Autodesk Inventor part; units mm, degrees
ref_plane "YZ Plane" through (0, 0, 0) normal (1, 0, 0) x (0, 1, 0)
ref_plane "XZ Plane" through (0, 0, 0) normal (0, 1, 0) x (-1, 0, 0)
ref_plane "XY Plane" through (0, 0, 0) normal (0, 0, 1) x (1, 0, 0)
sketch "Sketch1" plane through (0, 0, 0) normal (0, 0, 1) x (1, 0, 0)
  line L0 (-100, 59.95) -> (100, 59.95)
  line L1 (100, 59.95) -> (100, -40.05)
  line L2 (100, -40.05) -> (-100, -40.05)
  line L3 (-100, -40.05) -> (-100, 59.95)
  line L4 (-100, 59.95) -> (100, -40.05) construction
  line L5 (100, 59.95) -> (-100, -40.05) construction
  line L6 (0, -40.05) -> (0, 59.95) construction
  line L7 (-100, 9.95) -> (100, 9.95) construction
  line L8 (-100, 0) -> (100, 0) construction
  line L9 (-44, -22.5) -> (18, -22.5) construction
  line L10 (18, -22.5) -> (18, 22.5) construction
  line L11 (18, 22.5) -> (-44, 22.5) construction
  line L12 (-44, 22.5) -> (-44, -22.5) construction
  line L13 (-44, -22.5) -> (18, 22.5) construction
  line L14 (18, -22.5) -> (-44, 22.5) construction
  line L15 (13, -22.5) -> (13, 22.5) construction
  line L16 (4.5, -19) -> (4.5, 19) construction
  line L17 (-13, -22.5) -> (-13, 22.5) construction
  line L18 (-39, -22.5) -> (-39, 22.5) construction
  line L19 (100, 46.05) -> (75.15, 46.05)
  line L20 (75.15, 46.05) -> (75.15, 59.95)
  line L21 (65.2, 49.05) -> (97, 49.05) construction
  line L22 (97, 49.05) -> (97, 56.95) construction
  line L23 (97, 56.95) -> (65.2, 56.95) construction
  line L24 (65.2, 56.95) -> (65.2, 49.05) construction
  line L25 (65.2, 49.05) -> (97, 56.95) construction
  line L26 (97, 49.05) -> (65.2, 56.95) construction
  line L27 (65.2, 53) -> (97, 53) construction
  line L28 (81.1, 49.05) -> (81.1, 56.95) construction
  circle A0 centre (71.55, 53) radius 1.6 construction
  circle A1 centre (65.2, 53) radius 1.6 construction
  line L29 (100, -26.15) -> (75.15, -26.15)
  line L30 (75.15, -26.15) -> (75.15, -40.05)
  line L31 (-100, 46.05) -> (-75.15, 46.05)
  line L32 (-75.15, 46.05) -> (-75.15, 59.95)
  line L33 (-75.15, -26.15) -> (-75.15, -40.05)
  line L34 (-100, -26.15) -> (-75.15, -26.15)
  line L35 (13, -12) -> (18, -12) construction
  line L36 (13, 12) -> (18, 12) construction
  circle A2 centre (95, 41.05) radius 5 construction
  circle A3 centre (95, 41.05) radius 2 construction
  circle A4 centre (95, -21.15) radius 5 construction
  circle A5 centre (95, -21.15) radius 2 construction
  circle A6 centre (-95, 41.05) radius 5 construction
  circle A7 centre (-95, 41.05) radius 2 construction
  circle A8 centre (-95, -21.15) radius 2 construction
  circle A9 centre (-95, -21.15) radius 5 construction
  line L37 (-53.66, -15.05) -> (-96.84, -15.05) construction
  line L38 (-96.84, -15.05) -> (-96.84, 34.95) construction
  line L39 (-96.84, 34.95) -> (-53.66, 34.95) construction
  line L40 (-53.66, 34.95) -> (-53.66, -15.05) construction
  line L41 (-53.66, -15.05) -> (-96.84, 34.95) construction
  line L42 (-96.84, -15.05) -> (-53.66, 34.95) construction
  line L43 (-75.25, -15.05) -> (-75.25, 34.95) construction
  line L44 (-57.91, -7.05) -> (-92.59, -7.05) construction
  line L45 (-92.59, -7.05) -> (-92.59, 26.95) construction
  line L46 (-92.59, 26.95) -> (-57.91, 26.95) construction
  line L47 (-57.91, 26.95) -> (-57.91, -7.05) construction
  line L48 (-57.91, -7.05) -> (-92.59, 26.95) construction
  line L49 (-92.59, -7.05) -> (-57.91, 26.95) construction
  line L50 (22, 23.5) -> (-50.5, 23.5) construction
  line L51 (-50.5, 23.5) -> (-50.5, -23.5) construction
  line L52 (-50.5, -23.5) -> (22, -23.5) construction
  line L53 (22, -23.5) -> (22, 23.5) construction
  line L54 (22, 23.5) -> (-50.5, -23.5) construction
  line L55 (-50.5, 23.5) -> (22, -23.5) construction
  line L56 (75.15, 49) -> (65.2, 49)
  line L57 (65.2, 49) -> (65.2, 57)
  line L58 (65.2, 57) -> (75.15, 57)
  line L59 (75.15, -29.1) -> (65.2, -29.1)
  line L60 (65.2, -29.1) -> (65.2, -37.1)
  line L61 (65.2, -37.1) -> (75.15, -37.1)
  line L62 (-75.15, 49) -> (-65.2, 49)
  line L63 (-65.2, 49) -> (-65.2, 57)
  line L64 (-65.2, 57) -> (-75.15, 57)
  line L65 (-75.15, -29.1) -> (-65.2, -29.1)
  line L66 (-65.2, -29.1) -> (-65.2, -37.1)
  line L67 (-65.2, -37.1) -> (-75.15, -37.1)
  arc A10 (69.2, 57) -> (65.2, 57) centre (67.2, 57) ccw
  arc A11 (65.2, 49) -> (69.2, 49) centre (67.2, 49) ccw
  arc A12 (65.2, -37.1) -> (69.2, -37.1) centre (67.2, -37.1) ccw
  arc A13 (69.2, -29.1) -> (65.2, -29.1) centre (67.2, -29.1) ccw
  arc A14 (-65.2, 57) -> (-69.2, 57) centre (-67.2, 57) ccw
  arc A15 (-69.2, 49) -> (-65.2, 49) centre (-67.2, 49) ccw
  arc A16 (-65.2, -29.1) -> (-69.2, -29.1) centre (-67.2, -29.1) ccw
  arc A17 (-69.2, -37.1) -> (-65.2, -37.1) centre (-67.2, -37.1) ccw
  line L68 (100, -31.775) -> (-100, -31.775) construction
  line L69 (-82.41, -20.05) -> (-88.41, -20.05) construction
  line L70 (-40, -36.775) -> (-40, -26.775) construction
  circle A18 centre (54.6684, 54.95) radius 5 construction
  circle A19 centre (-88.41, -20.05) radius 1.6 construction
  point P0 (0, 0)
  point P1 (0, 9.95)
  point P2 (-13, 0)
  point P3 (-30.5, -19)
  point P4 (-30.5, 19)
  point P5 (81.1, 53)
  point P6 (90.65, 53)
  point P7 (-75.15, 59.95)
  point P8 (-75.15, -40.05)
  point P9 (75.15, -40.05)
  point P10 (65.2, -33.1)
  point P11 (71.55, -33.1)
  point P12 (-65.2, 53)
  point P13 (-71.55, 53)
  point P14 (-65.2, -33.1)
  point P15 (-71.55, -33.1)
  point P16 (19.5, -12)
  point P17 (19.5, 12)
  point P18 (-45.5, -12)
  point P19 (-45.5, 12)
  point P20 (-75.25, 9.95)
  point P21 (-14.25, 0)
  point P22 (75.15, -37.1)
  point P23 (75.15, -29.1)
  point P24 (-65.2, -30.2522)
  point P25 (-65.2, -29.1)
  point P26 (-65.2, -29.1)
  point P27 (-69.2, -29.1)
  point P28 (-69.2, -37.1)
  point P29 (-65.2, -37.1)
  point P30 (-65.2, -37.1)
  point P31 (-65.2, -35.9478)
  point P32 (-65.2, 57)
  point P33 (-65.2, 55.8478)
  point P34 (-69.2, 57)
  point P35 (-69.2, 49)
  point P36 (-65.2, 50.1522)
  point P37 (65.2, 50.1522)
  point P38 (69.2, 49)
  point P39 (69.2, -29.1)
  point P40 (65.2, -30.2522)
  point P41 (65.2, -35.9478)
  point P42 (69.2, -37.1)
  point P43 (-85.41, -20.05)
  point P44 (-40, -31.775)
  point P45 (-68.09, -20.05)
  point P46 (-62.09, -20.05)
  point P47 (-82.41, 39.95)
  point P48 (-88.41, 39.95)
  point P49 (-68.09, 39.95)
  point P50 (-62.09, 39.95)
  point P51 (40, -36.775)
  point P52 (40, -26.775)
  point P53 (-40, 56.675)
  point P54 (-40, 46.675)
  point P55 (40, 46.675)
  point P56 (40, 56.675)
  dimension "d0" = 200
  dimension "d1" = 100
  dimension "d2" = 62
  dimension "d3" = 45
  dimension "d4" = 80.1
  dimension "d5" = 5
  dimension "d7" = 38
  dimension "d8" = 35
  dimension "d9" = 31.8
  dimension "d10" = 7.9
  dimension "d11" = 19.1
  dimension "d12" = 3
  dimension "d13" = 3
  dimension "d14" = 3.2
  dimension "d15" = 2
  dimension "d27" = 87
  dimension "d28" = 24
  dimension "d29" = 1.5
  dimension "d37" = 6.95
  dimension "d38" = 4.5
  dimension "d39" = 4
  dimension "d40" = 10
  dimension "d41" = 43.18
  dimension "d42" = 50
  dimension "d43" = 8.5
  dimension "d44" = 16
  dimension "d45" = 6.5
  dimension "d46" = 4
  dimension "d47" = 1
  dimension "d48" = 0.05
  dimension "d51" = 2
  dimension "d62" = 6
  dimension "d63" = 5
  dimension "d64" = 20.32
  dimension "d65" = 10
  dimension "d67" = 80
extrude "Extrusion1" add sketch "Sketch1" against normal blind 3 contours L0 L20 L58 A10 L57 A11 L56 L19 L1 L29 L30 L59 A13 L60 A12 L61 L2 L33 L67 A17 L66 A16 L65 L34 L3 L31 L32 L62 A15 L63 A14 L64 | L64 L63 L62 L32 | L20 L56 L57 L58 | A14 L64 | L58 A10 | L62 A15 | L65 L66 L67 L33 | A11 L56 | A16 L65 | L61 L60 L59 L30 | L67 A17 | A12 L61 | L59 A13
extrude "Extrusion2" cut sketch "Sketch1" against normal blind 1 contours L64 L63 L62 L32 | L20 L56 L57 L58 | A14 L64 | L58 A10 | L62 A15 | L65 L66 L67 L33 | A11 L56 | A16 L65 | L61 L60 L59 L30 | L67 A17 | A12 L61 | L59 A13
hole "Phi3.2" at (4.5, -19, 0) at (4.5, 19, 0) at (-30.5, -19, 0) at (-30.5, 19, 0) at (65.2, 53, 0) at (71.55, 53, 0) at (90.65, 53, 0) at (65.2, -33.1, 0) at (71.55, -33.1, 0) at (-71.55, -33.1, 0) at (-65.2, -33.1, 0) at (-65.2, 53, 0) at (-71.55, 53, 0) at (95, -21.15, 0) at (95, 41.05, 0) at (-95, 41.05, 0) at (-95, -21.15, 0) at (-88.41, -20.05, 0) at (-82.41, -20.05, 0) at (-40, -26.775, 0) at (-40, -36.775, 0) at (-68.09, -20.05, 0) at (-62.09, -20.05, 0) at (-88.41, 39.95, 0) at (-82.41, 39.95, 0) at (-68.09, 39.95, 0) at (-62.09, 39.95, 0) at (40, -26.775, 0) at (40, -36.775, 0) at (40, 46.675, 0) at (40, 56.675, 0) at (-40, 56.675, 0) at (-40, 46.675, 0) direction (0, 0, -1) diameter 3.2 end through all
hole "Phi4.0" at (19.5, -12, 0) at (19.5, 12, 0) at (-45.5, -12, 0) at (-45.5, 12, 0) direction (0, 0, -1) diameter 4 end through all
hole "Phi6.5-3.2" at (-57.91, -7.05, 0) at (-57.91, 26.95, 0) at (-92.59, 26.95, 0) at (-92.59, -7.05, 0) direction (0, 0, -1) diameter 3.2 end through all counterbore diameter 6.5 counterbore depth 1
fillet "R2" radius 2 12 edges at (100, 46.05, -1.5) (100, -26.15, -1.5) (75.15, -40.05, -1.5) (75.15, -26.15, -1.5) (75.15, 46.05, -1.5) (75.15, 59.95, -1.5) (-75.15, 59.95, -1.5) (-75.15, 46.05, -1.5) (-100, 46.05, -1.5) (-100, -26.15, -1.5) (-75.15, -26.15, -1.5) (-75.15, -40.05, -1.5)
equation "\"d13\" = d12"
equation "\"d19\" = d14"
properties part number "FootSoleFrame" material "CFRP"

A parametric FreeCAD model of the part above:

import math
import FreeCAD as App
import Part
import Sketcher
Q = App.Units.Quantity


def edges_at(feature, points):
    """Names of the edges that pass closest to the given points."""
    edges = feature.Shape.Edges
    near = lambda p: min(range(len(edges)), key=lambda i: edges[i].distToShape(Part.Vertex(*p))[0])
    return sorted({f"Edge{near(p) + 1}" for p in points})

doc = App.newDocument("Part")
body = doc.addObject("PartDesign::Body", "Body")

# Sketch on XY plane
sketch1 = doc.addObject("Sketcher::SketchObject", "Sketch")
body.addObject(sketch1)
sketch1.AttachmentSupport = (doc.XY_Plane, [""])
sketch1.MapMode = "FlatFace"
sketch1.addGeometry([
    Part.LineSegment(App.Vector(75, 60, 0), App.Vector(-75, 60, 0)),  # 0
    Part.LineSegment(App.Vector(-75, 60, 0), App.Vector(-75, 46, 0)),  # 1
    Part.LineSegment(App.Vector(-75, 46, 0), App.Vector(-100, 46, 0)),  # 2
    Part.LineSegment(App.Vector(-100, 46, 0), App.Vector(-100, -26, 0)),  # 3
    Part.LineSegment(App.Vector(-100, -26, 0), App.Vector(-75, -26, 0)),  # 4
    Part.LineSegment(App.Vector(-75, -26, 0), App.Vector(-75, -40, 0)),  # 5
    Part.LineSegment(App.Vector(-75, -40, 0), App.Vector(75, -40, 0)),  # 6
    Part.LineSegment(App.Vector(75, -40, 0), App.Vector(75, -26, 0)),  # 7
    Part.LineSegment(App.Vector(75, -26, 0), App.Vector(100, -26, 0)),  # 8
    Part.LineSegment(App.Vector(100, -26, 0), App.Vector(100, 46, 0)),  # 9
    Part.LineSegment(App.Vector(100, 46, 0), App.Vector(75, 46, 0)),  # 10
    Part.LineSegment(App.Vector(75, 46, 0), App.Vector(75, 60, 0)),  # 11
], False)
sketch1.addConstraint([
    Sketcher.Constraint("Coincident", 0, 2, 1, 1),
    Sketcher.Constraint("Coincident", 1, 2, 2, 1),
    Sketcher.Constraint("Coincident", 2, 2, 3, 1),
    Sketcher.Constraint("Coincident", 3, 2, 4, 1),
    Sketcher.Constraint("Coincident", 4, 2, 5, 1),
    Sketcher.Constraint("Coincident", 5, 2, 6, 1),
    Sketcher.Constraint("Coincident", 6, 2, 7, 1),
    Sketcher.Constraint("Coincident", 7, 2, 8, 1),
    Sketcher.Constraint("Coincident", 8, 2, 9, 1),
    Sketcher.Constraint("Coincident", 9, 2, 10, 1),
    Sketcher.Constraint("Coincident", 10, 2, 11, 1),
    Sketcher.Constraint("Coincident", 11, 2, 0, 1),
    Sketcher.Constraint("Horizontal", 0),
    Sketcher.Constraint("Vertical", 1),
    Sketcher.Constraint("Horizontal", 2),
    Sketcher.Constraint("Vertical", 3),
    Sketcher.Constraint("Horizontal", 4),
    Sketcher.Constraint("Vertical", 5),
    Sketcher.Constraint("Horizontal", 6),
    Sketcher.Constraint("Vertical", 7),
    Sketcher.Constraint("Horizontal", 8),
    Sketcher.Constraint("Vertical", 9),
    Sketcher.Constraint("Horizontal", 10),
    Sketcher.Constraint("Vertical", 11),
    Sketcher.Constraint("Symmetric", 4, 2, 7, 2, -2),
    Sketcher.Constraint("Symmetric", 2, 2, 9, 2, -2),
    Sketcher.Constraint("Vertical", 1, 2, 4, 2),
    Sketcher.Constraint("Vertical", 7, 2, 10, 2),
    Sketcher.Constraint("Equal", 1, 5),
    Sketcher.Constraint("DistanceX", 2, 2, -1, 1, Q("100 mm")),
    Sketcher.Constraint("DistanceY", 5, 2, 0, 2, Q("100 mm")),
    Sketcher.Constraint("DistanceX", 0, 2, 0, 1, Q("150.3 mm")),
    Sketcher.Constraint("DistanceY", 1, 2, 1, 1, Q("13.9 mm")),
    Sketcher.Constraint("DistanceY", -1, 1, 0, 2, Q("59.95 mm")),
])
pad1 = doc.addObject("PartDesign::Pad", "Pad")
body.addObject(pad1)
pad1.Profile = sketch1
pad1.Length = 3
pad1.Reversed = True

# Sketch on XY plane
sketch2 = doc.addObject("Sketcher::SketchObject", "Sketch001")
body.addObject(sketch2)
sketch2.AttachmentSupport = (doc.XY_Plane, [""])
sketch2.MapMode = "FlatFace"
sketch2.addGeometry([
    Part.LineSegment(App.Vector(-69.2, 57, 0), App.Vector(-75.2, 57, 0)),  # 0
    Part.LineSegment(App.Vector(-75.2, 57, 0), App.Vector(-75.2, 49, 0)),  # 1
    Part.LineSegment(App.Vector(-75.2, 49, 0), App.Vector(-69.2, 49, 0)),  # 2
    Part.ArcOfCircle(Part.Circle(App.Vector(-67.2, 49, 0), App.Vector(0, 0, 1), 2), math.radians(180), math.radians(360)),  # 3
    Part.LineSegment(App.Vector(-65.2, 49, 0), App.Vector(-65.2, 57, 0)),  # 4
    Part.ArcOfCircle(Part.Circle(App.Vector(-67.2, 57, 0), App.Vector(0, 0, 1), 2), math.radians(0), math.radians(180)),  # 5
    Part.LineSegment(App.Vector(75.2, 49, 0), App.Vector(75.2, 57, 0)),  # 6
    Part.LineSegment(App.Vector(75.2, 57, 0), App.Vector(69.2, 57, 0)),  # 7
    Part.ArcOfCircle(Part.Circle(App.Vector(67.2, 57, 0), App.Vector(0, 0, 1), 2), math.radians(0), math.radians(180)),  # 8
    Part.LineSegment(App.Vector(65.2, 57, 0), App.Vector(65.2, 49, 0)),  # 9
    Part.ArcOfCircle(Part.Circle(App.Vector(67.2, 49, 0), App.Vector(0, 0, 1), 2), math.radians(180), math.radians(360)),  # 10
    Part.LineSegment(App.Vector(69.2, 49, 0), App.Vector(75.2, 49, 0)),  # 11
    Part.LineSegment(App.Vector(-69.2, -29.1, 0), App.Vector(-75.2, -29.1, 0)),  # 12
    Part.LineSegment(App.Vector(-75.2, -29.1, 0), App.Vector(-75.2, -37.1, 0)),  # 13
    Part.LineSegment(App.Vector(-75.2, -37.1, 0), App.Vector(-69.2, -37.1, 0)),  # 14
    Part.ArcOfCircle(Part.Circle(App.Vector(-67.2, -37.1, 0), App.Vector(0, 0, 1), 2), math.radians(180), math.radians(360)),  # 15
    Part.LineSegment(App.Vector(-65.2, -37.1, 0), App.Vector(-65.2, -29.1, 0)),  # 16
    Part.ArcOfCircle(Part.Circle(App.Vector(-67.2, -29.1, 0), App.Vector(0, 0, 1), 2), math.radians(0), math.radians(180)),  # 17
    Part.LineSegment(App.Vector(69.2, -37.1, 0), App.Vector(75.2, -37.1, 0)),  # 18
    Part.LineSegment(App.Vector(75.2, -37.1, 0), App.Vector(75.2, -29.1, 0)),  # 19
    Part.LineSegment(App.Vector(75.2, -29.1, 0), App.Vector(69.2, -29.1, 0)),  # 20
    Part.ArcOfCircle(Part.Circle(App.Vector(67.2, -29.1, 0), App.Vector(0, 0, 1), 2), math.radians(0), math.radians(180)),  # 21
    Part.LineSegment(App.Vector(65.2, -29.1, 0), App.Vector(65.2, -37.1, 0)),  # 22
    Part.ArcOfCircle(Part.Circle(App.Vector(67.2, -37.1, 0), App.Vector(0, 0, 1), 2), math.radians(180), math.radians(360)),  # 23
], False)
sketch2.addConstraint([
    Sketcher.Constraint("Coincident", 0, 2, 1, 1),
    Sketcher.Constraint("Coincident", 1, 2, 2, 1),
    Sketcher.Constraint("Coincident", 2, 2, 3, 1),
    Sketcher.Constraint("Tangent", 3, 2, 4, 1),
    Sketcher.Constraint("Tangent", 4, 2, 5, 1),
    Sketcher.Constraint("Coincident", 5, 2, 0, 1),
    Sketcher.Constraint("Coincident", 6, 2, 7, 1),
    Sketcher.Constraint("Coincident", 7, 2, 8, 1),
    Sketcher.Constraint("Tangent", 8, 2, 9, 1),
    Sketcher.Constraint("Tangent", 9, 2, 10, 1),
    Sketcher.Constraint("Coincident", 10, 2, 11, 1),
    Sketcher.Constraint("Coincident", 11, 2, 6, 1),
    Sketcher.Constraint("Coincident", 12, 2, 13, 1),
    Sketcher.Constraint("Coincident", 13, 2, 14, 1),
    Sketcher.Constraint("Coincident", 14, 2, 15, 1),
    Sketcher.Constraint("Tangent", 15, 2, 16, 1),
    Sketcher.Constraint("Tangent", 16, 2, 17, 1),
    Sketcher.Constraint("Coincident", 17, 2, 12, 1),
    Sketcher.Constraint("Coincident", 18, 2, 19, 1),
    Sketcher.Constraint("Coincident", 19, 2, 20, 1),
    Sketcher.Constraint("Coincident", 20, 2, 21, 1),
    Sketcher.Constraint("Tangent", 21, 2, 22, 1),
    Sketcher.Constraint("Tangent", 22, 2, 23, 1),
    Sketcher.Constraint("Coincident", 23, 2, 18, 1),
    Sketcher.Constraint("Horizontal", 0),
    Sketcher.Constraint("Vertical", 1),
    Sketcher.Constraint("Horizontal", 2),
    Sketcher.Constraint("Vertical", 4),
    Sketcher.Constraint("Vertical", 6),
    Sketcher.Constraint("Horizontal", 7),
    Sketcher.Constraint("Vertical", 9),
    Sketcher.Constraint("Horizontal", 11),
    Sketcher.Constraint("Horizontal", 12),
    Sketcher.Constraint("Vertical", 13),
    Sketcher.Constraint("Horizontal", 14),
    Sketcher.Constraint("Vertical", 16),
    Sketcher.Constraint("Horizontal", 18),
    Sketcher.Constraint("Vertical", 19),
    Sketcher.Constraint("Horizontal", 20),
    Sketcher.Constraint("Vertical", 22),
    Sketcher.Constraint("Equal", 3, 5),
    Sketcher.Constraint("Equal", 5, 8),
    Sketcher.Constraint("Equal", 8, 10),
    Sketcher.Constraint("Equal", 10, 15),
    Sketcher.Constraint("Equal", 15, 17),
    Sketcher.Constraint("Equal", 17, 21),
    Sketcher.Constraint("Equal", 21, 23),
    Sketcher.Constraint("Symmetric", 5, 3, 8, 3, -2),
    Sketcher.Constraint("Symmetric", 17, 3, 21, 3, -2),
    Sketcher.Constraint("Symmetric", 0, 2, 6, 2, -2),
    Sketcher.Constraint("Symmetric", 13, 2, 18, 2, -2),
    Sketcher.Constraint("Horizontal", 3, 3, 10, 3),
    Sketcher.Constraint("Horizontal", 15, 3, 23, 3),
    Sketcher.Constraint("Horizontal", 8, 3, 0, 2),
    Sketcher.Constraint("Horizontal", 10, 3, 1, 2),
    Sketcher.Constraint("Horizontal", 9, 2, 10, 2),
    Sketcher.Constraint("Horizontal", 21, 3, 12, 2),
    Sketcher.Constraint("Horizontal", 23, 3, 13, 2),
    Sketcher.Constraint("Horizontal", 17, 2, 19, 2),
    Sketcher.Constraint("Vertical", 5, 3, 15, 3),
    Sketcher.Constraint("Vertical", 1, 2, 12, 2),
    Sketcher.Constraint("Equal", 9, 13),
    Sketcher.Constraint("Radius", 3, Q("2 mm")),
    Sketcher.Constraint("DistanceY", 1, 2, 1, 1, Q("8 mm")),
    Sketcher.Constraint("DistanceY", -1, 1, 3, 3, Q("49 mm")),
    Sketcher.Constraint("DistanceX", 0, 2, 0, 1, Q("5.95 mm")),
    Sketcher.Constraint("DistanceX", 3, 3, -1, 1, Q("67.2 mm")),
    Sketcher.Constraint("DistanceY", 15, 3, -1, 1, Q("37.1 mm")),
])
pocket1 = doc.addObject("PartDesign::Pocket", "Pocket")
body.addObject(pocket1)
pocket1.Profile = sketch2
pocket1.Length = 1

# Sketch on XY plane
sketch3 = doc.addObject("Sketcher::SketchObject", "Sketch002")
body.addObject(sketch3)
sketch3.AttachmentSupport = (doc.XY_Plane, [""])
sketch3.MapMode = "FlatFace"
sketch3.addGeometry([
    Part.Circle(App.Vector(4.5, -19, 0), App.Vector(0, 0, 1), 1.6),  # 0
    Part.Circle(App.Vector(4.5, 19, 0), App.Vector(0, 0, 1), 1.6),  # 1
    Part.Circle(App.Vector(-30.5, -19, 0), App.Vector(0, 0, 1), 1.6),  # 2
    Part.Circle(App.Vector(-30.5, 19, 0), App.Vector(0, 0, 1), 1.6),  # 3
    Part.Circle(App.Vector(65.2, 53, 0), App.Vector(0, 0, 1), 1.6),  # 4
    Part.Circle(App.Vector(71.5, 53, 0), App.Vector(0, 0, 1), 1.6),  # 5
    Part.Circle(App.Vector(90.7, 53, 0), App.Vector(0, 0, 1), 1.6),  # 6
    Part.Circle(App.Vector(65.2, -33.1, 0), App.Vector(0, 0, 1), 1.6),  # 7
    Part.Circle(App.Vector(71.5, -33.1, 0), App.Vector(0, 0, 1), 1.6),  # 8
    Part.Circle(App.Vector(-71.5, -33.1, 0), App.Vector(0, 0, 1), 1.6),  # 9
    Part.Circle(App.Vector(-65.2, -33.1, 0), App.Vector(0, 0, 1), 1.6),  # 10
    Part.Circle(App.Vector(-65.2, 53, 0), App.Vector(0, 0, 1), 1.6),  # 11
    Part.Circle(App.Vector(-71.5, 53, 0), App.Vector(0, 0, 1), 1.6),  # 12
    Part.Circle(App.Vector(95, -21.1, 0), App.Vector(0, 0, 1), 1.6),  # 13
    Part.Circle(App.Vector(95, 41, 0), App.Vector(0, 0, 1), 1.6),  # 14
    Part.Circle(App.Vector(-95, 41, 0), App.Vector(0, 0, 1), 1.6),  # 15
    Part.Circle(App.Vector(-95, -21.1, 0), App.Vector(0, 0, 1), 1.6),  # 16
    Part.Circle(App.Vector(-88.4, -20.1, 0), App.Vector(0, 0, 1), 1.6),  # 17
    Part.Circle(App.Vector(-82.4, -20.1, 0), App.Vector(0, 0, 1), 1.6),  # 18
    Part.Circle(App.Vector(-40, -26.8, 0), App.Vector(0, 0, 1), 1.6),  # 19
    Part.Circle(App.Vector(-40, -36.8, 0), App.Vector(0, 0, 1), 1.6),  # 20
    Part.Circle(App.Vector(-68.1, -20.1, 0), App.Vector(0, 0, 1), 1.6),  # 21
    Part.Circle(App.Vector(-62.1, -20.1, 0), App.Vector(0, 0, 1), 1.6),  # 22
    Part.Circle(App.Vector(-88.4, 40, 0), App.Vector(0, 0, 1), 1.6),  # 23
    Part.Circle(App.Vector(-82.4, 40, 0), App.Vector(0, 0, 1), 1.6),  # 24
    Part.Circle(App.Vector(-68.1, 40, 0), App.Vector(0, 0, 1), 1.6),  # 25
    Part.Circle(App.Vector(-62.1, 40, 0), App.Vector(0, 0, 1), 1.6),  # 26
    Part.Circle(App.Vector(40, -26.8, 0), App.Vector(0, 0, 1), 1.6),  # 27
    Part.Circle(App.Vector(40, -36.8, 0), App.Vector(0, 0, 1), 1.6),  # 28
    Part.Circle(App.Vector(40, 46.7, 0), App.Vector(0, 0, 1), 1.6),  # 29
    Part.Circle(App.Vector(40, 56.7, 0), App.Vector(0, 0, 1), 1.6),  # 30
    Part.Circle(App.Vector(-40, 56.7, 0), App.Vector(0, 0, 1), 1.6),  # 31
    Part.Circle(App.Vector(-40, 46.7, 0), App.Vector(0, 0, 1), 1.6),  # 32
], False)
sketch3.addConstraint([
    Sketcher.Constraint("Equal", 0, 1),
    Sketcher.Constraint("Equal", 1, 2),
    Sketcher.Constraint("Equal", 2, 3),
    Sketcher.Constraint("Equal", 3, 4),
    Sketcher.Constraint("Equal", 4, 5),
    Sketcher.Constraint("Equal", 5, 6),
    Sketcher.Constraint("Equal", 6, 7),
    Sketcher.Constraint("Equal", 7, 8),
    Sketcher.Constraint("Equal", 8, 9),
    Sketcher.Constraint("Equal", 9, 10),
    Sketcher.Constraint("Equal", 10, 11),
    Sketcher.Constraint("Equal", 11, 12),
    Sketcher.Constraint("Equal", 12, 13),
    Sketcher.Constraint("Equal", 13, 14),
    Sketcher.Constraint("Equal", 14, 15),
    Sketcher.Constraint("Equal", 15, 16),
    Sketcher.Constraint("Equal", 16, 17),
    Sketcher.Constraint("Equal", 17, 18),
    Sketcher.Constraint("Equal", 18, 19),
    Sketcher.Constraint("Equal", 19, 20),
    Sketcher.Constraint("Equal", 20, 21),
    Sketcher.Constraint("Equal", 21, 22),
    Sketcher.Constraint("Equal", 22, 23),
    Sketcher.Constraint("Equal", 23, 24),
    Sketcher.Constraint("Equal", 24, 25),
    Sketcher.Constraint("Equal", 25, 26),
    Sketcher.Constraint("Equal", 26, 27),
    Sketcher.Constraint("Equal", 27, 28),
    Sketcher.Constraint("Equal", 28, 29),
    Sketcher.Constraint("Equal", 29, 30),
    Sketcher.Constraint("Equal", 30, 31),
    Sketcher.Constraint("Equal", 31, 32),
    Sketcher.Constraint("Symmetric", 8, 3, 9, 3, -2),
    Sketcher.Constraint("Symmetric", 7, 3, 10, 3, -2),
    Sketcher.Constraint("Symmetric", 4, 3, 11, 3, -2),
    Sketcher.Constraint("Symmetric", 5, 3, 12, 3, -2),
    Sketcher.Constraint("Symmetric", 14, 3, 15, 3, -2),
    Sketcher.Constraint("Symmetric", 13, 3, 16, 3, -2),
    Sketcher.Constraint("Symmetric", 19, 3, 27, 3, -2),
    Sketcher.Constraint("Symmetric", 20, 3, 28, 3, -2),
    Sketcher.Constraint("Symmetric", 30, 3, 31, 3, -2),
    Sketcher.Constraint("Symmetric", 29, 3, 32, 3, -2),
    Sketcher.Constraint("Symmetric", 0, 3, 1, 3, -1),
    Sketcher.Constraint("Symmetric", 2, 3, 3, 3, -1),
    Sketcher.Constraint("Horizontal", 0, 3, 2, 3),
    Sketcher.Constraint("Horizontal", 4, 3, 5, 3),
    Sketcher.Constraint("Horizontal", 5, 3, 6, 3),
    Sketcher.Constraint("Horizontal", 7, 3, 8, 3),
    Sketcher.Constraint("Horizontal", 17, 3, 18, 3),
    Sketcher.Constraint("Horizontal", 18, 3, 21, 3),
    Sketcher.Constraint("Horizontal", 21, 3, 22, 3),
    Sketcher.Constraint("Horizontal", 23, 3, 24, 3),
    Sketcher.Constraint("Horizontal", 24, 3, 25, 3),
    Sketcher.Constraint("Horizontal", 25, 3, 26, 3),
    Sketcher.Constraint("Vertical", 4, 3, 7, 3),
    Sketcher.Constraint("Vertical", 5, 3, 8, 3),
    Sketcher.Constraint("Vertical", 13, 3, 14, 3),
    Sketcher.Constraint("Vertical", 19, 3, 20, 3),
    Sketcher.Constraint("Vertical", 17, 3, 23, 3),
    Sketcher.Constraint("Vertical", 18, 3, 24, 3),
    Sketcher.Constraint("Vertical", 21, 3, 25, 3),
    Sketcher.Constraint("Vertical", 22, 3, 26, 3),
    Sketcher.Constraint("Vertical", 28, 3, 29, 3),
    Sketcher.Constraint("Vertical", 29, 3, 30, 3),
    Sketcher.Constraint("Diameter", 0, Q("3.2 mm")),
    Sketcher.Constraint("DistanceY", 0, 3, -1, 1, Q("19 mm")),
    Sketcher.Constraint("DistanceY", -1, 1, 4, 3, Q("53 mm")),
    Sketcher.Constraint("DistanceX", -1, 1, 13, 3, Q("95 mm")),
    Sketcher.Constraint("DistanceX", 19, 3, -1, 1, Q("40 mm")),
    Sketcher.Constraint("DistanceX", 2, 3, 0, 3, Q("35 mm")),
    Sketcher.Constraint("DistanceX", 17, 3, 18, 3, Q("6 mm")),
    Sketcher.Constraint("DistanceY", 20, 3, 19, 3, Q("10 mm")),
    Sketcher.Constraint("DistanceX", 21, 3, 22, 3, Q("6 mm")),
    Sketcher.Constraint("DistanceY", 17, 3, 23, 3, Q("60 mm")),
    Sketcher.Constraint("DistanceY", 29, 3, 30, 3, Q("10 mm")),
    Sketcher.Constraint("DistanceX", -1, 1, 0, 3, Q("4.5 mm")),
    Sketcher.Constraint("DistanceX", -1, 1, 4, 3, Q("65.2 mm")),
    Sketcher.Constraint("DistanceY", 7, 3, -1, 1, Q("33.1 mm")),
    Sketcher.Constraint("DistanceX", 5, 3, 6, 3, Q("19.1 mm")),
    Sketcher.Constraint("DistanceY", 13, 3, 14, 3, Q("62.2 mm")),
    Sketcher.Constraint("DistanceY", 16, 3, 17, 3, Q("1.1 mm")),
    Sketcher.Constraint("DistanceX", -1, 1, 5, 3, Q("71.55 mm")),
    Sketcher.Constraint("DistanceY", 13, 3, -1, 1, Q("21.15 mm")),
    Sketcher.Constraint("DistanceX", 17, 3, -1, 1, Q("88.41 mm")),
    Sketcher.Constraint("DistanceX", 21, 3, -1, 1, Q("68.09 mm")),
    Sketcher.Constraint("DistanceY", 19, 3, -1, 1, Q("26.775 mm")),
    Sketcher.Constraint("DistanceY", -1, 1, 29, 3, Q("46.675 mm")),
])
doc.recompute()
hole = doc.addObject("PartDesign::Hole", "Hole")
body.addObject(hole)
hole.Profile = sketch3
hole.ThreadType = "None"
hole.Diameter = 3.2
hole.DepthType = "ThroughAll"

# Sketch on XY plane
sketch4 = doc.addObject("Sketcher::SketchObject", "Sketch003")
body.addObject(sketch4)
sketch4.AttachmentSupport = (doc.XY_Plane, [""])
sketch4.MapMode = "FlatFace"
sketch4.addGeometry([
    Part.Circle(App.Vector(19.5, -12, 0), App.Vector(0, 0, 1), 2),
    Part.Circle(App.Vector(19.5, 12, 0), App.Vector(0, 0, 1), 2),
    Part.Circle(App.Vector(-45.5, -12, 0), App.Vector(0, 0, 1), 2),
    Part.Circle(App.Vector(-45.5, 12, 0), App.Vector(0, 0, 1), 2),
], False)
sketch4.addConstraint([
    Sketcher.Constraint("Equal", 0, 1),
    Sketcher.Constraint("Equal", 1, 2),
    Sketcher.Constraint("Equal", 2, 3),
    Sketcher.Constraint("Symmetric", 0, 3, 1, 3, -1),
    Sketcher.Constraint("Symmetric", 2, 3, 3, 3, -1),
    Sketcher.Constraint("Horizontal", 0, 3, 2, 3),
    Sketcher.Constraint("Diameter", 0, Q("4 mm")),
    Sketcher.Constraint("DistanceY", 0, 3, -1, 1, Q("12 mm")),
    Sketcher.Constraint("DistanceX", 2, 3, 0, 3, Q("65 mm")),
    Sketcher.Constraint("DistanceX", -1, 1, 0, 3, Q("19.5 mm")),
])
doc.recompute()
hole2 = doc.addObject("PartDesign::Hole", "Hole001")
body.addObject(hole2)
hole2.Profile = sketch4
hole2.ThreadType = "None"
hole2.Diameter = 4
hole2.DepthType = "ThroughAll"

# Sketch on XY plane
sketch5 = doc.addObject("Sketcher::SketchObject", "Sketch004")
body.addObject(sketch5)
sketch5.AttachmentSupport = (doc.XY_Plane, [""])
sketch5.MapMode = "FlatFace"
sketch5.addGeometry([
    Part.Circle(App.Vector(-57.9, -7, 0), App.Vector(0, 0, 1), 1.6),
    Part.Circle(App.Vector(-57.9, 26.9, 0), App.Vector(0, 0, 1), 1.6),
    Part.Circle(App.Vector(-92.6, 26.9, 0), App.Vector(0, 0, 1), 1.6),
    Part.Circle(App.Vector(-92.6, -7, 0), App.Vector(0, 0, 1), 1.6),
], False)
sketch5.addConstraint([
    Sketcher.Constraint("Equal", 0, 1),
    Sketcher.Constraint("Equal", 1, 2),
    Sketcher.Constraint("Equal", 2, 3),
    Sketcher.Constraint("Horizontal", 1, 3, 2, 3),
    Sketcher.Constraint("Horizontal", 0, 3, 3, 3),
    Sketcher.Constraint("Vertical", 0, 3, 1, 3),
    Sketcher.Constraint("Vertical", 2, 3, 3, 3),
    Sketcher.Constraint("Diameter", 0, Q("3.2 mm")),
    Sketcher.Constraint("DistanceY", 0, 3, 1, 3, Q("34 mm")),
    Sketcher.Constraint("DistanceX", 0, 3, -1, 1, Q("57.91 mm")),
    Sketcher.Constraint("DistanceY", 0, 3, -1, 1, Q("7.05 mm")),
    Sketcher.Constraint("DistanceX", 2, 3, -1, 1, Q("92.59 mm")),
])
doc.recompute()
hole3 = doc.addObject("PartDesign::Hole", "Hole002")
body.addObject(hole3)
hole3.Profile = sketch5
hole3.ThreadType = "None"
hole3.Diameter = 3.2
hole3.DepthType = "ThroughAll"
hole3.HoleCutType = "Counterbore"
hole3.HoleCutDiameter = 6.5
hole3.HoleCutDepth = 1
doc.recompute()

fillet = doc.addObject("PartDesign::Fillet", "Fillet")
body.addObject(fillet)
fillet.Base = (hole3, edges_at(hole3, [
    (100, 46.05, -1.5),
    (100, -26.15, -1.5),
    (75.15, -40.05, -1.5),
    (75.15, -26.15, -1.5),
    (75.15, 46.05, -1.5),
    (75.15, 59.95, -1.5),
    (-75.15, 59.95, -1.5),
    (-75.15, 46.05, -1.5),
    (-100, 46.05, -1.5),
    (-100, -26.15, -1.5),
    (-75.15, -26.15, -1.5),
    (-75.15, -40.05, -1.5),
]))
fillet.Radius = 2

doc.recompute()
